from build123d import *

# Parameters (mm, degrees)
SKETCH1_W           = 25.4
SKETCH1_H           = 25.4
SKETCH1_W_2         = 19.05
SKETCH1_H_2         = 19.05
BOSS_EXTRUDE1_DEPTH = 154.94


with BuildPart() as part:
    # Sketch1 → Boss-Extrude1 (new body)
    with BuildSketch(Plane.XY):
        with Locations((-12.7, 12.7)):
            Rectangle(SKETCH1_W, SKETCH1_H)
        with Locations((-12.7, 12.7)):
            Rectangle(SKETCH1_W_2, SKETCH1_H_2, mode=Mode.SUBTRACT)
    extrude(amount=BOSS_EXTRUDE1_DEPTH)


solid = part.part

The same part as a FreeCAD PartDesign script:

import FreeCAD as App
import Part
import Sketcher
Q = App.Units.Quantity


def add_polygon(sketch, points):
    """Adds a closed chain of lines whose ends are joined by coincident constraints."""
    first, n = sketch.GeometryCount, len(points)
    for a, b in zip(points, points[1:] + points[:1]):
        sketch.addGeometry(Part.LineSegment(App.Vector(*a, 0), App.Vector(*b, 0)), False)
    for i in range(n):
        sketch.addConstraint(Sketcher.Constraint("Coincident", first + i, 2, first + (i + 1) % n, 1))

doc = App.newDocument("Part")
body = doc.addObject("PartDesign::Body", "Body")

# Sketch on XY plane
sketch1 = doc.addObject("Sketcher::SketchObject", "Sketch")
body.addObject(sketch1)
sketch1.AttachmentSupport = (doc.XY_Plane, [""])
sketch1.MapMode = "FlatFace"
add_polygon(sketch1, [(-25, 25), (-25, 0), (0, 0), (0, 25)])  # lines 0-3
add_polygon(sketch1, [(-3, 3), (-22, 3), (-22, 22), (-3, 22)])  # lines 4-7
sketch1.addConstraint([
    Sketcher.Constraint("Vertical", 0),
    Sketcher.Constraint("Horizontal", 1),
    Sketcher.Constraint("Vertical", 2),
    Sketcher.Constraint("Horizontal", 3),
    Sketcher.Constraint("Horizontal", 4),
    Sketcher.Constraint("Vertical", 5),
    Sketcher.Constraint("Horizontal", 6),
    Sketcher.Constraint("Vertical", 7),
    Sketcher.Constraint("Coincident", 1, 2, -1, 1),
    Sketcher.Constraint("Equal", 3, 0),
    Sketcher.Constraint("Equal", 6, 5),
    Sketcher.Constraint("DistanceX", 1, 1, 1, 2, Q("1 in")),
    Sketcher.Constraint("DistanceX", 4, 2, 4, 1, Q("0.75 in")),
    Sketcher.Constraint("DistanceX", 4, 2, -1, 1, Q("0.875 in")),
    Sketcher.Constraint("DistanceY", -1, 1, 4, 2, Q("0.125 in")),
])
pad1 = doc.addObject("PartDesign::Pad", "Pad")
body.addObject(pad1)
pad1.Profile = sketch1
pad1.Length = Q("6.1 in")

doc.recompute()
